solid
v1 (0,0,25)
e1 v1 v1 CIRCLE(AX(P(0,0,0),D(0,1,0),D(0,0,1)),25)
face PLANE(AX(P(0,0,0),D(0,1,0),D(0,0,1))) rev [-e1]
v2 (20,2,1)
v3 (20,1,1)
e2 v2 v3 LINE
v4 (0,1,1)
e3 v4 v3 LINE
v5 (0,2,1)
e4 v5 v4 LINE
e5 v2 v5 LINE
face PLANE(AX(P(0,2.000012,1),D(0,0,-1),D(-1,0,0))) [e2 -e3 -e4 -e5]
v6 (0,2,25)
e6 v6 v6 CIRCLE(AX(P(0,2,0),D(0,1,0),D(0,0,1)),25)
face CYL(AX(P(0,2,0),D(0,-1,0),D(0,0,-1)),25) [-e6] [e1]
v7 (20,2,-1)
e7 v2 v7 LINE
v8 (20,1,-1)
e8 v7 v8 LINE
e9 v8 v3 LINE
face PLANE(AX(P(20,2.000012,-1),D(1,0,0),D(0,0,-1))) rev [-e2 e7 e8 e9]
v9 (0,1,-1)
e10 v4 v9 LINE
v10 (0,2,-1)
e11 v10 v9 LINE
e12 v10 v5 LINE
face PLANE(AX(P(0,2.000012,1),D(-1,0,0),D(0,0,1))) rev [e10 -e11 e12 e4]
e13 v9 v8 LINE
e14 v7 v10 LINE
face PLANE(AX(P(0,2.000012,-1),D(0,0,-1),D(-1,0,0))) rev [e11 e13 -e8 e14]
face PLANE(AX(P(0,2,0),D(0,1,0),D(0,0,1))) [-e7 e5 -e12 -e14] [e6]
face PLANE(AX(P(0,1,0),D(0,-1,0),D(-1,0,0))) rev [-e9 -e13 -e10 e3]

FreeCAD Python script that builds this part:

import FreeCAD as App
import Part
import Sketcher


def add_polygon(sketch, points):
    """Adds a closed chain of lines whose ends are joined by coincident constraints."""
    first, n = sketch.GeometryCount, len(points)
    for a, b in zip(points, points[1:] + points[:1]):
        sketch.addGeometry(Part.LineSegment(App.Vector(*a, 0), App.Vector(*b, 0)), False)
    for i in range(n):
        sketch.addConstraint(Sketcher.Constraint("Coincident", first + i, 2, first + (i + 1) % n, 1))

doc = App.newDocument("Part")
body = doc.addObject("PartDesign::Body", "Body")

# Sketch on XZ plane
sketch1 = body.newObject("Sketcher::SketchObject", "Sketch")
sketch1.AttachmentSupport = (doc.getObject("XZ_Plane"), [""])
sketch1.MapMode = "FlatFace"
sketch1.addGeometry(Part.Circle(App.Vector(0, 0, 0), App.Vector(0, 0, 1), 25), False)
sketch1.addConstraint([
    Sketcher.Constraint("Coincident", 0, 3, -1, 1),
    Sketcher.Constraint("Diameter", 0, 50.0),
])
pad1 = body.newObject("PartDesign::Pad", "Pad")
pad1.Profile = sketch1
pad1.Length = 2
pad1.Reversed = True

# Sketch on XZ plane
sketch2 = body.newObject("Sketcher::SketchObject", "Sketch001")
sketch2.AttachmentSupport = (doc.getObject("XZ_Plane"), [""])
sketch2.MapMode = "FlatFace"
sketch2.AttachmentOffset = App.Placement(App.Vector(0, 0, -2), App.Rotation())
add_polygon(sketch2, [(0, -1), (0, 1), (20, 1), (20, -1)])  # lines 0-3
sketch2.addConstraint([
    Sketcher.Constraint("Vertical", 0),
    Sketcher.Constraint("Horizontal", 1),
    Sketcher.Constraint("Vertical", 2),
    Sketcher.Constraint("Horizontal", 3),
    Sketcher.Constraint("Symmetric", 0, 2, 3, 2, -1, 1),
    Sketcher.Constraint("DistanceX", 1, 1, 1, 2, 20.0),
    Sketcher.Constraint("DistanceY", 0, 1, 0, 2, 2.0),
])
pocket1 = body.newObject("PartDesign::Pocket", "Pocket")
pocket1.Profile = sketch2
pocket1.Type = "TwoLengths"
pocket1.Length = 1
pocket1.Length2 = 1

doc.recompute()
